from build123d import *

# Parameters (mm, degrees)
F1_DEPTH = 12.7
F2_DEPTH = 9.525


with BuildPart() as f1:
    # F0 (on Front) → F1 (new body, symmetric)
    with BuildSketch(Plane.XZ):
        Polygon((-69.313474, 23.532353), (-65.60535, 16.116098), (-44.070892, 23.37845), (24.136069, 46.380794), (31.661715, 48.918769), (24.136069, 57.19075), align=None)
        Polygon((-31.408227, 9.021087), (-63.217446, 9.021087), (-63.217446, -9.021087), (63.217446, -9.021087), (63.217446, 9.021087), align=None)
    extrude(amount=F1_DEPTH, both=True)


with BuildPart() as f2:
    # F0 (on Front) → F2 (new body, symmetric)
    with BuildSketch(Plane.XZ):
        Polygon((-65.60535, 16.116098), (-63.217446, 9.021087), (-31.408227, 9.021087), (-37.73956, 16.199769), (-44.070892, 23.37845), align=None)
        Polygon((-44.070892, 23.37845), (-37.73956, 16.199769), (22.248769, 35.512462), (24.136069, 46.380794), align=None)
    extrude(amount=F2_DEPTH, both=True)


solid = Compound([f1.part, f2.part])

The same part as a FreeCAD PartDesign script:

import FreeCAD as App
import Part
import Sketcher
Q = App.Units.Quantity


def add_polygon(sketch, points):
    """Adds a closed chain of lines whose ends are joined by coincident constraints."""
    first, n = sketch.GeometryCount, len(points)
    for a, b in zip(points, points[1:] + points[:1]):
        sketch.addGeometry(Part.LineSegment(App.Vector(*a, 0), App.Vector(*b, 0)), False)
    for i in range(n):
        sketch.addConstraint(Sketcher.Constraint("Coincident", first + i, 2, first + (i + 1) % n, 1))

doc = App.newDocument("Part")
body = doc.addObject("PartDesign::Body", "Body")
body.AllowCompound = True

# Sketch on XZ plane
sketch1 = body.newObject("Sketcher::SketchObject", "Sketch")
sketch1.AttachmentSupport = (doc.getObject("XZ_Plane"), [""])
sketch1.MapMode = "FlatFace"
add_polygon(sketch1, [(-69.313474, 23.532353), (-65.60535, 16.116098), (-44.070892, 23.37845), (24.136069, 46.380794), (31.661715, 48.918769), (24.136069, 57.19075)])  # lines 0-5
add_polygon(sketch1, [(-63.217446, 9.021087), (-63.217446, -9.021087), (63.217446, -9.021087), (63.217446, 9.021087)])  # lines 6-9
sketch1.addConstraint(Sketcher.Constraint("Vertical", 6))
sketch1.addConstraint(Sketcher.Constraint("Horizontal", 7))
sketch1.addConstraint(Sketcher.Constraint("Vertical", 8))
sketch1.addConstraint(Sketcher.Constraint("Horizontal", 9))
sketch1.addConstraint(Sketcher.Constraint("Symmetric", 6, 2, 8, 2, -1, 1))
sketch1.addConstraint(Sketcher.Constraint("Parallel", 1, 2))
sketch1.addConstraint(Sketcher.Constraint("Parallel", 2, 3))
sketch1.addConstraint(Sketcher.Constraint("Vertical", 2, 2, 4, 2))
sketch1.addConstraint(Sketcher.Constraint("DistanceY", -1, 1, 0, 2, Q("16.116098 mm")))
sketch1.addConstraint(Sketcher.Constraint("DistanceY", 1, 2, 4, 2, Q("33.8123 mm")))
sketch1.addConstraint(Sketcher.Constraint("Distance", 1, Q("22.726078 mm")))
sketch1.addConstraint(Sketcher.Constraint("Distance", 2, Q("71.981229 mm")))
sketch1.addConstraint(Sketcher.Constraint("Distance", 3, Q("7.942082 mm")))
sketch1.addConstraint(Sketcher.Constraint("Distance", 4, Q("11.183068 mm")))
sketch1.addConstraint(Sketcher.Constraint("DistanceX", 7, 1, 7, 2, Q("126.434892 mm")))
sketch1.addConstraint(Sketcher.Constraint("DistanceY", 6, 2, 6, 1, Q("18.042174 mm")))
sketch1.addConstraint(Sketcher.Constraint("DistanceX", 0, 2, -1, 1, Q("65.60535 mm")))
sketch1.addConstraint(Sketcher.Constraint("DistanceX", 5, 2, 1, 2, Q("25.242582 mm")))
sketch1.addConstraint(Sketcher.Constraint("DistanceY", 5, 2, 2, 2, Q("22.848441 mm")))
pad1 = body.newObject("PartDesign::Pad", "Pad")
pad1.Profile = sketch1
pad1.Length = Q("1 in")
pad1.Midplane = True
body2 = doc.addObject("PartDesign::Body", "Body001")

# Sketch on XZ plane
sketch2 = body2.newObject("Sketcher::SketchObject", "Sketch001")
sketch2.AttachmentSupport = (doc.getObject("XZ_Plane001"), [""])
sketch2.MapMode = "FlatFace"
add_polygon(sketch2, [(-65.60535, 16.116098), (-63.217446, 9.021087), (-31.408227, 9.021087), (-37.73956, 16.199769), (22.248769, 35.512462), (24.136069, 46.380794), (-44.070892, 23.37845)])  # lines 0-6
sketch2.addConstraint(Sketcher.Constraint("Horizontal", 1))
sketch2.addConstraint(Sketcher.Constraint("Parallel", 5, 6))
sketch2.addConstraint(Sketcher.Constraint("DistanceX", 1, 1, 1, 2, Q("31.809219 mm")))
sketch2.addConstraint(Sketcher.Constraint("DistanceY", -1, 1, 6, 2, Q("16.116098 mm")))
sketch2.addConstraint(Sketcher.Constraint("DistanceX", 3, 2, 4, 2, Q("1.8873 mm")))
sketch2.addConstraint(Sketcher.Constraint("Distance", 0, Q("7.486072 mm")))
sketch2.addConstraint(Sketcher.Constraint("Distance", 3, Q("63.020471 mm")))
sketch2.addConstraint(Sketcher.Constraint("Distance", 4, Q("11.030981 mm")))
sketch2.addConstraint(Sketcher.Constraint("Distance", 5, Q("71.981229 mm")))
sketch2.addConstraint(Sketcher.Constraint("Distance", 6, Q("22.726078 mm")))
sketch2.addConstraint(Sketcher.Constraint("DistanceX", 2, 2, -1, 1, Q("37.73956 mm")))
sketch2.addConstraint(Sketcher.Constraint("DistanceY", -1, 1, 2, 2, Q("16.199769 mm")))
sketch2.addConstraint(Sketcher.Constraint("DistanceX", -1, 1, 3, 2, Q("22.248769 mm")))
sketch2.addConstraint(Sketcher.Constraint("DistanceY", 0, 2, 6, 2, Q("7.095011 mm")))
pad2 = body2.newObject("PartDesign::Pad", "Pad001")
pad2.Profile = sketch2
pad2.Length = Q("0.75 in")
pad2.Midplane = True

doc.recompute()
